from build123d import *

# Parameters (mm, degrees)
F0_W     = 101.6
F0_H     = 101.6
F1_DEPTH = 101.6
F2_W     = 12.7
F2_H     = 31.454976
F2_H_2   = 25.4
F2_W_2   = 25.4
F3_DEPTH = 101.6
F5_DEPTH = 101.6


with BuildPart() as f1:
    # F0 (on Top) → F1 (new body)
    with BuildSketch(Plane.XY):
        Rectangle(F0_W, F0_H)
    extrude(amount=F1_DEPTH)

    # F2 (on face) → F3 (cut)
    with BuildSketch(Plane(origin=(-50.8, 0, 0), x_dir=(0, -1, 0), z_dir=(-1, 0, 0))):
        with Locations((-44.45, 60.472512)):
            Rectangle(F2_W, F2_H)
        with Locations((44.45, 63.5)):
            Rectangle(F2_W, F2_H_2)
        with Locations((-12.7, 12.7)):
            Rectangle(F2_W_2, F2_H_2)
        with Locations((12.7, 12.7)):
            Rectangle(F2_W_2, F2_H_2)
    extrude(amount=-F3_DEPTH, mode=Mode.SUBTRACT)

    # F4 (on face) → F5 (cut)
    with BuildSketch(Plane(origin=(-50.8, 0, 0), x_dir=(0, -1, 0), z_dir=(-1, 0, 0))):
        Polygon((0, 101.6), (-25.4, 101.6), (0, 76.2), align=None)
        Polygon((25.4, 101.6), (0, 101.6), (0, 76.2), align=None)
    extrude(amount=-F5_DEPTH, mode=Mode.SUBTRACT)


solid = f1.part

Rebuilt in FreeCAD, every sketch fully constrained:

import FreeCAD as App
import Part
import Sketcher
Q = App.Units.Quantity


def add_polygon(sketch, points):
    """Adds a closed chain of lines whose ends are joined by coincident constraints."""
    first, n = sketch.GeometryCount, len(points)
    for a, b in zip(points, points[1:] + points[:1]):
        sketch.addGeometry(Part.LineSegment(App.Vector(*a, 0), App.Vector(*b, 0)), False)
    for i in range(n):
        sketch.addConstraint(Sketcher.Constraint("Coincident", first + i, 2, first + (i + 1) % n, 1))

doc = App.newDocument("Part")
body = doc.addObject("PartDesign::Body", "Body")

sketch1 = doc.addObject("Sketcher::SketchObject", "Sketch")
body.addObject(sketch1)
sketch1.AttachmentSupport = (doc.XY_Plane, [""])
sketch1.MapMode = "FlatFace"
add_polygon(sketch1, [(-51, 51), (-51, -51), (51, -51), (51, 51)])
sketch1.addConstraint([
    Sketcher.Constraint("Vertical", 0),
    Sketcher.Constraint("Horizontal", 1),
    Sketcher.Constraint("Vertical", 2),
    Sketcher.Constraint("Horizontal", 3),
    Sketcher.Constraint("Symmetric", 0, 2, 2, 2, -1, 1),
    Sketcher.Constraint("Equal", 3, 0),
    Sketcher.Constraint("DistanceX", 1, 1, 1, 2, Q("4 in")),
])
pad1 = doc.addObject("PartDesign::Pad", "Pad")
body.addObject(pad1)
pad1.Profile = sketch1
pad1.Length = Q("4 in")

sketch2 = doc.addObject("Sketcher::SketchObject", "Sketch001")
body.addObject(sketch2)
sketch2.AttachmentSupport = (doc.YZ_Plane, [""])
sketch2.MapMode = "FlatFace"
sketch2.AttachmentOffset = App.Placement(App.Vector(0, 0, -2 * 25.4), App.Rotation())
add_polygon(sketch2, [(51, 76), (51, 45), (38, 45), (38, 76)])
add_polygon(sketch2, [(-38, 76), (-38, 51), (-51, 51), (-51, 76)])
add_polygon(sketch2, [(25, 25), (25, 0), (-25, 0), (-25, 25)])
sketch2.addConstraint([
    Sketcher.Constraint("Vertical", 0),
    Sketcher.Constraint("Horizontal", 1),
    Sketcher.Constraint("Vertical", 2),
    Sketcher.Constraint("Horizontal", 3),
    Sketcher.Constraint("Vertical", 4),
    Sketcher.Constraint("Horizontal", 5),
    Sketcher.Constraint("Vertical", 6),
    Sketcher.Constraint("Horizontal", 7),
    Sketcher.Constraint("Vertical", 8),
    Sketcher.Constraint("Horizontal", 9),
    Sketcher.Constraint("Vertical", 10),
    Sketcher.Constraint("Horizontal", 11),
    Sketcher.Constraint("Symmetric", 8, 2, 9, 2, -1, 1),
    Sketcher.Constraint("Symmetric", 3, 2, 6, 2, -2),
    Sketcher.Constraint("Equal", 3, 5),
    Sketcher.Constraint("Equal", 6, 8),
    Sketcher.Constraint("DistanceX", 9, 2, 9, 1, Q("2 in")),
    Sketcher.Constraint("DistanceY", 4, 2, 4, 1, Q("1 in")),
    Sketcher.Constraint("DistanceX", 1, 2, 1, 1, Q("0.5 in")),
    Sketcher.Constraint("DistanceX", -1, 1, 0, 2, Q("2 in")),
    Sketcher.Constraint("DistanceY", -1, 1, 2, 2, Q("3 in")),
    Sketcher.Constraint("DistanceY", 0, 2, 0, 1, Q("31.454976 mm")),
])
pocket1 = doc.addObject("PartDesign::Pocket", "Pocket")
body.addObject(pocket1)
pocket1.Profile = sketch2
pocket1.Length = Q("4 in")
pocket1.Reversed = True

sketch3 = doc.addObject("Sketcher::SketchObject", "Sketch002")
body.addObject(sketch3)
sketch3.AttachmentSupport = (doc.YZ_Plane, [""])
sketch3.MapMode = "FlatFace"
sketch3.AttachmentOffset = App.Placement(App.Vector(0, 0, -2 * 25.4), App.Rotation())
add_polygon(sketch3, [(25, 102), (0, 76), (-25, 102)])
sketch3.addConstraint([
    Sketcher.Constraint("Horizontal", 2),
    Sketcher.Constraint("PointOnObject", 0, 2, -2),
    Sketcher.Constraint("Perpendicular", 0, 1),
    Sketcher.Constraint("Equal", 0, 1),
    Sketcher.Constraint("DistanceX", 2, 1, 2, 2, Q("2 in")),
    Sketcher.Constraint("DistanceY", -1, 1, 0, 2, Q("3 in")),
])
pocket2 = doc.addObject("PartDesign::Pocket", "Pocket001")
body.addObject(pocket2)
pocket2.Profile = sketch3
pocket2.Length = Q("4 in")
pocket2.Reversed = True

doc.recompute()
